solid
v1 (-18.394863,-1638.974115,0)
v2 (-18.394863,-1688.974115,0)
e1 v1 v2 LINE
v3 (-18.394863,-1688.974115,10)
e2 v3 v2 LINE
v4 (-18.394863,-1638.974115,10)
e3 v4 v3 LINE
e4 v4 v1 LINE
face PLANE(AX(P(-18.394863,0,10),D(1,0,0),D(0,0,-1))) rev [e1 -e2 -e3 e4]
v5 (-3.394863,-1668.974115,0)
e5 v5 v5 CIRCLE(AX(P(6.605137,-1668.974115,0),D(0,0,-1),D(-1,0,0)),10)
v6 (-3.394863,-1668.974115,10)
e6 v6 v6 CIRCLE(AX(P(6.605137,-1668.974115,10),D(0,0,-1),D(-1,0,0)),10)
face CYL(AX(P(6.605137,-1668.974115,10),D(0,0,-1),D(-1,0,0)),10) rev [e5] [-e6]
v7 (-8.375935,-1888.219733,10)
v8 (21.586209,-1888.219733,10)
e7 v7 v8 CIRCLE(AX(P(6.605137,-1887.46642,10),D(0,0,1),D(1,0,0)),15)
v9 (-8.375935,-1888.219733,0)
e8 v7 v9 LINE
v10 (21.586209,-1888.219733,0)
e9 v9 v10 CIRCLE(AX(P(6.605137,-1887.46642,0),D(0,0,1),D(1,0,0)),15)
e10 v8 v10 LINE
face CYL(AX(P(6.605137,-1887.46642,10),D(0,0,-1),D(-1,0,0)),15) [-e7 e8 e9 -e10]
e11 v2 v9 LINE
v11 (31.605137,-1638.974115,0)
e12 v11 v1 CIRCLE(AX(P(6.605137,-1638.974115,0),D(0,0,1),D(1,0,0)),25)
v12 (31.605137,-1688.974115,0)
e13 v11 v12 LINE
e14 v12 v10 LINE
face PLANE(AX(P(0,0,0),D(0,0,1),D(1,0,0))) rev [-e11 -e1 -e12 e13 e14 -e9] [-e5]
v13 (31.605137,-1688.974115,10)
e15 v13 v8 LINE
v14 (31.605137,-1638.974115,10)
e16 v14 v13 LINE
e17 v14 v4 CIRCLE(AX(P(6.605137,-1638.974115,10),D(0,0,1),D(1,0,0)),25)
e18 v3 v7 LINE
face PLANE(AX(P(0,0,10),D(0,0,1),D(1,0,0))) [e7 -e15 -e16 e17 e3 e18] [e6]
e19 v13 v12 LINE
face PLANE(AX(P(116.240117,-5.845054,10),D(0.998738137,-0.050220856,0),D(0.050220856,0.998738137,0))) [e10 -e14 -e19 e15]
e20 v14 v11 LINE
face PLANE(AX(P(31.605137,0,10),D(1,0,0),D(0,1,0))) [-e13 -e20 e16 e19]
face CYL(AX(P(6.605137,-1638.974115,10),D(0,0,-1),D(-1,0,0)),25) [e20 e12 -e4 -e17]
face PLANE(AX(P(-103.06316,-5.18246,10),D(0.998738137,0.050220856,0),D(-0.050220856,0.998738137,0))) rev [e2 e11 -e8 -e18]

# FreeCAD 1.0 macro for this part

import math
import FreeCAD as App
import Part
import Sketcher
from FreeCAD import Vector

doc = App.newDocument("Part")
params = doc.addObject("Spreadsheet::Sheet", "Params")
for row, (alias, value) in enumerate([
    ("sketch1_radius", "15 mm"),
    ("sketch1_width", "50 mm"),
    ("pad1_length", "10 mm"),
    ("sketch2_radius", "25 mm"),
    ("pad2_length", "10 mm"),
    ("sketch3_diameter", "20 mm"),
], start=1):
    params.set(f"A{row}", alias)
    params.set(f"B{row}", "=" + value)
    params.setAlias(f"B{row}", alias)

body = doc.addObject("PartDesign::Body", "Body")

# Sketch on XY plane
sketch1 = body.newObject("Sketcher::SketchObject", "Sketch")
sketch1.AttachmentSupport = (doc.getObject("XY_Plane"), [""])
sketch1.MapMode = "FlatFace"
sketch1.addGeometry(Part.ArcOfCircle(Part.Circle(Vector(7, -1887, 0), Vector(0, 0, 1), 15), math.radians(-177), math.radians(-3)), False)
sketch1.addGeometry(Part.LineSegment(Vector(22, -1888, 0), Vector(32, -1689, 0)), False)
sketch1.addGeometry(Part.LineSegment(Vector(32, -1689, 0), Vector(32, -1639, 0)), False)
sketch1.addGeometry(Part.LineSegment(Vector(32, -1639, 0), Vector(-18, -1639, 0)), False)
sketch1.addGeometry(Part.LineSegment(Vector(-18, -1639, 0), Vector(-18, -1689, 0)), False)
sketch1.addGeometry(Part.LineSegment(Vector(-18, -1689, 0), Vector(-8, -1888, 0)), False)
sketch1.addConstraint(Sketcher.Constraint("Tangent", 0, 2, 1, 1))
sketch1.addConstraint(Sketcher.Constraint("Coincident", 1, 2, 2, 1))
sketch1.addConstraint(Sketcher.Constraint("Coincident", 2, 2, 3, 1))
sketch1.addConstraint(Sketcher.Constraint("Coincident", 3, 2, 4, 1))
sketch1.addConstraint(Sketcher.Constraint("Coincident", 4, 2, 5, 1))
sketch1.addConstraint(Sketcher.Constraint("Tangent", 5, 2, 0, 1))
sketch1.addConstraint(Sketcher.Constraint("Vertical", 2))
sketch1.addConstraint(Sketcher.Constraint("Horizontal", 3))
sketch1.addConstraint(Sketcher.Constraint("Vertical", 4))
sketch1.addConstraint(Sketcher.Constraint("Horizontal", 1, 2, 4, 2))
sketch1.addConstraint(Sketcher.Constraint("Horizontal", 0, 2, 5, 2))
sketch1.addConstraint(Sketcher.Constraint("Equal", 3, 2))
sketch1.addConstraint(Sketcher.Constraint("Radius", 0, 15.0))
sketch1.addConstraint(Sketcher.Constraint("DistanceX", 3, 2, 3, 1, 50.0))
sketch1.addConstraint(Sketcher.Constraint("DistanceY", 0, 3, -1, 1, 1887.46642))
sketch1.addConstraint(Sketcher.Constraint("DistanceX", -1, 1, 0, 2, 21.586209))
sketch1.addConstraint(Sketcher.Constraint("DistanceY", 0, 2, 1, 2, 199.245618))
sketch1.setExpression("Constraints[12]", "Params.sketch1_radius")
sketch1.setExpression("Constraints[13]", "Params.sketch1_width")
pad1 = body.newObject("PartDesign::Pad", "Pad")
pad1.Profile = sketch1
pad1.setExpression("Length", "Params.pad1_length")

# Sketch on XY plane
sketch2 = body.newObject("Sketcher::SketchObject", "Sketch001")
sketch2.AttachmentSupport = (doc.getObject("XY_Plane"), [""])
sketch2.MapMode = "FlatFace"
sketch2.addGeometry(Part.LineSegment(Vector(32, -1639, 0), Vector(-18, -1639, 0)), False)
sketch2.addGeometry(Part.ArcOfCircle(Part.Circle(Vector(7, -1639, 0), Vector(0, 0, 1), 25), math.radians(0), math.radians(180)), False)
sketch2.addConstraint(Sketcher.Constraint("Coincident", 0, 1, 1, 1))
sketch2.addConstraint(Sketcher.Constraint("Coincident", 1, 2, 0, 2))
sketch2.addConstraint(Sketcher.Constraint("Horizontal", 0))
sketch2.addConstraint(Sketcher.Constraint("Horizontal", 1, 3, 0, 1))
sketch2.addConstraint(Sketcher.Constraint("Radius", 1, 25.0))
sketch2.addConstraint(Sketcher.Constraint("DistanceX", -1, 1, 1, 3, 6.605137))
sketch2.addConstraint(Sketcher.Constraint("DistanceY", 1, 3, -1, 1, 1638.974115))
sketch2.setExpression("Constraints[4]", "Params.sketch2_radius")
pad2 = body.newObject("PartDesign::Pad", "Pad001")
pad2.Profile = sketch2
pad2.setExpression("Length", "Params.pad2_length")

# Sketch on XY plane
sketch3 = body.newObject("Sketcher::SketchObject", "Sketch002")
sketch3.AttachmentSupport = (doc.getObject("XY_Plane"), [""])
sketch3.MapMode = "FlatFace"
sketch3.addGeometry(Part.Circle(Vector(7, -1669, 0), Vector(0, 0, 1), 10), False)
sketch3.addConstraint(Sketcher.Constraint("Diameter", 0, 20.0))
sketch3.addConstraint(Sketcher.Constraint("DistanceX", -1, 1, 0, 3, 6.605137))
sketch3.addConstraint(Sketcher.Constraint("DistanceY", 0, 3, -1, 1, 1668.974115))
sketch3.setExpression("Constraints[0]", "Params.sketch3_diameter")
pocket1 = body.newObject("PartDesign::Pocket", "Pocket")
pocket1.Profile = sketch3
pocket1.Type = "ThroughAll"
pocket1.Reversed = True

doc.recompute()
